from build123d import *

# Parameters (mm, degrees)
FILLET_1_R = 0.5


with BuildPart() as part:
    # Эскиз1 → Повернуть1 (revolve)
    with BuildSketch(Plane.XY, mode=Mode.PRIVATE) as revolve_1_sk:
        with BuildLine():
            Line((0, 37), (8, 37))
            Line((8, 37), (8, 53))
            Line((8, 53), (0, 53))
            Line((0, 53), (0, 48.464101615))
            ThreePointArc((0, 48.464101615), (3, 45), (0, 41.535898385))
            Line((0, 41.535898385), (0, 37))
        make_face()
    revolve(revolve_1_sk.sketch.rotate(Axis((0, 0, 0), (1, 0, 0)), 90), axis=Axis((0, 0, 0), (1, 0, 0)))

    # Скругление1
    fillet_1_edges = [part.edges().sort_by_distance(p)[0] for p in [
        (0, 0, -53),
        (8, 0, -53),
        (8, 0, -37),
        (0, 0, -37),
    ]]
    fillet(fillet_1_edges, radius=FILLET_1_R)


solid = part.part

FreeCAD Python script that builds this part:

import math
import FreeCAD as App
import Part
import Sketcher

V = App.Vector


def edges_at(feature, points):
    """Names of the edges that pass closest to the given points."""
    edges = feature.Shape.Edges
    near = lambda p: min(range(len(edges)), key=lambda i: edges[i].distToShape(Part.Vertex(*p))[0])
    return sorted({f"Edge{near(p) + 1}" for p in points})

doc = App.newDocument("Part")
body = doc.addObject("PartDesign::Body", "Body")

# Sketch on XY plane
sketch1 = body.newObject("Sketcher::SketchObject", "Sketch")
sketch1.AttachmentSupport = (doc.getObject("XY_Plane"), [""])
sketch1.MapMode = "FlatFace"
sketch1.addGeometry(Part.LineSegment(V(0, 37, 0), V(8, 37, 0)), False)
sketch1.addGeometry(Part.LineSegment(V(8, 37, 0), V(8, 53, 0)), False)
sketch1.addGeometry(Part.LineSegment(V(8, 53, 0), V(0, 53, 0)), False)
sketch1.addGeometry(Part.LineSegment(V(0, 53, 0), V(0, 48.5, 0)), False)
sketch1.addGeometry(Part.ArcOfCircle(Part.Circle(V(-0.5, 45, 0), V(0, 0, 1), 3.5), math.radians(-82), math.radians(82)), False)
sketch1.addGeometry(Part.LineSegment(V(0, 41.5, 0), V(0, 37, 0)), False)
sketch1.addConstraint(Sketcher.Constraint("Coincident", 0, 2, 1, 1))
sketch1.addConstraint(Sketcher.Constraint("Coincident", 1, 2, 2, 1))
sketch1.addConstraint(Sketcher.Constraint("Coincident", 2, 2, 3, 1))
sketch1.addConstraint(Sketcher.Constraint("Coincident", 3, 2, 4, 2))
sketch1.addConstraint(Sketcher.Constraint("Coincident", 4, 1, 5, 1))
sketch1.addConstraint(Sketcher.Constraint("Coincident", 5, 2, 0, 1))
sketch1.addConstraint(Sketcher.Constraint("Horizontal", 0))
sketch1.addConstraint(Sketcher.Constraint("Vertical", 1))
sketch1.addConstraint(Sketcher.Constraint("Horizontal", 2))
sketch1.addConstraint(Sketcher.Constraint("Vertical", 3))
sketch1.addConstraint(Sketcher.Constraint("Vertical", 5))
sketch1.addConstraint(Sketcher.Constraint("PointOnObject", 2, 2, -2))
sketch1.addConstraint(Sketcher.Constraint("PointOnObject", 4, 1, -2))
sketch1.addConstraint(Sketcher.Constraint("Equal", 3, 5))
sketch1.addConstraint(Sketcher.Constraint("Radius", 4, 3.5))
sketch1.addConstraint(Sketcher.Constraint("DistanceX", 0, 1, 0, 2, 8.0))
sketch1.addConstraint(Sketcher.Constraint("DistanceY", 1, 1, 1, 2, 16.0))
sketch1.addConstraint(Sketcher.Constraint("DistanceY", -1, 1, 4, 3, 45.0))
sketch1.addConstraint(Sketcher.Constraint("DistanceX", 4, 3, -1, 1, 0.5))
revolution = body.newObject("PartDesign::Revolution", "Revolution")
revolution.Profile = sketch1
revolution.ReferenceAxis = (sketch1, ["H_Axis"])
revolution.Angle = 360
doc.recompute()

fillet = body.newObject("PartDesign::Fillet", "Fillet")
fillet.Base = (revolution, edges_at(revolution, [
    (0, 0, -53),
    (8, 0, -53),
    (8, 0, -37),
    (0, 0, -37),
]))
fillet.Radius = 0.5

doc.recompute()
